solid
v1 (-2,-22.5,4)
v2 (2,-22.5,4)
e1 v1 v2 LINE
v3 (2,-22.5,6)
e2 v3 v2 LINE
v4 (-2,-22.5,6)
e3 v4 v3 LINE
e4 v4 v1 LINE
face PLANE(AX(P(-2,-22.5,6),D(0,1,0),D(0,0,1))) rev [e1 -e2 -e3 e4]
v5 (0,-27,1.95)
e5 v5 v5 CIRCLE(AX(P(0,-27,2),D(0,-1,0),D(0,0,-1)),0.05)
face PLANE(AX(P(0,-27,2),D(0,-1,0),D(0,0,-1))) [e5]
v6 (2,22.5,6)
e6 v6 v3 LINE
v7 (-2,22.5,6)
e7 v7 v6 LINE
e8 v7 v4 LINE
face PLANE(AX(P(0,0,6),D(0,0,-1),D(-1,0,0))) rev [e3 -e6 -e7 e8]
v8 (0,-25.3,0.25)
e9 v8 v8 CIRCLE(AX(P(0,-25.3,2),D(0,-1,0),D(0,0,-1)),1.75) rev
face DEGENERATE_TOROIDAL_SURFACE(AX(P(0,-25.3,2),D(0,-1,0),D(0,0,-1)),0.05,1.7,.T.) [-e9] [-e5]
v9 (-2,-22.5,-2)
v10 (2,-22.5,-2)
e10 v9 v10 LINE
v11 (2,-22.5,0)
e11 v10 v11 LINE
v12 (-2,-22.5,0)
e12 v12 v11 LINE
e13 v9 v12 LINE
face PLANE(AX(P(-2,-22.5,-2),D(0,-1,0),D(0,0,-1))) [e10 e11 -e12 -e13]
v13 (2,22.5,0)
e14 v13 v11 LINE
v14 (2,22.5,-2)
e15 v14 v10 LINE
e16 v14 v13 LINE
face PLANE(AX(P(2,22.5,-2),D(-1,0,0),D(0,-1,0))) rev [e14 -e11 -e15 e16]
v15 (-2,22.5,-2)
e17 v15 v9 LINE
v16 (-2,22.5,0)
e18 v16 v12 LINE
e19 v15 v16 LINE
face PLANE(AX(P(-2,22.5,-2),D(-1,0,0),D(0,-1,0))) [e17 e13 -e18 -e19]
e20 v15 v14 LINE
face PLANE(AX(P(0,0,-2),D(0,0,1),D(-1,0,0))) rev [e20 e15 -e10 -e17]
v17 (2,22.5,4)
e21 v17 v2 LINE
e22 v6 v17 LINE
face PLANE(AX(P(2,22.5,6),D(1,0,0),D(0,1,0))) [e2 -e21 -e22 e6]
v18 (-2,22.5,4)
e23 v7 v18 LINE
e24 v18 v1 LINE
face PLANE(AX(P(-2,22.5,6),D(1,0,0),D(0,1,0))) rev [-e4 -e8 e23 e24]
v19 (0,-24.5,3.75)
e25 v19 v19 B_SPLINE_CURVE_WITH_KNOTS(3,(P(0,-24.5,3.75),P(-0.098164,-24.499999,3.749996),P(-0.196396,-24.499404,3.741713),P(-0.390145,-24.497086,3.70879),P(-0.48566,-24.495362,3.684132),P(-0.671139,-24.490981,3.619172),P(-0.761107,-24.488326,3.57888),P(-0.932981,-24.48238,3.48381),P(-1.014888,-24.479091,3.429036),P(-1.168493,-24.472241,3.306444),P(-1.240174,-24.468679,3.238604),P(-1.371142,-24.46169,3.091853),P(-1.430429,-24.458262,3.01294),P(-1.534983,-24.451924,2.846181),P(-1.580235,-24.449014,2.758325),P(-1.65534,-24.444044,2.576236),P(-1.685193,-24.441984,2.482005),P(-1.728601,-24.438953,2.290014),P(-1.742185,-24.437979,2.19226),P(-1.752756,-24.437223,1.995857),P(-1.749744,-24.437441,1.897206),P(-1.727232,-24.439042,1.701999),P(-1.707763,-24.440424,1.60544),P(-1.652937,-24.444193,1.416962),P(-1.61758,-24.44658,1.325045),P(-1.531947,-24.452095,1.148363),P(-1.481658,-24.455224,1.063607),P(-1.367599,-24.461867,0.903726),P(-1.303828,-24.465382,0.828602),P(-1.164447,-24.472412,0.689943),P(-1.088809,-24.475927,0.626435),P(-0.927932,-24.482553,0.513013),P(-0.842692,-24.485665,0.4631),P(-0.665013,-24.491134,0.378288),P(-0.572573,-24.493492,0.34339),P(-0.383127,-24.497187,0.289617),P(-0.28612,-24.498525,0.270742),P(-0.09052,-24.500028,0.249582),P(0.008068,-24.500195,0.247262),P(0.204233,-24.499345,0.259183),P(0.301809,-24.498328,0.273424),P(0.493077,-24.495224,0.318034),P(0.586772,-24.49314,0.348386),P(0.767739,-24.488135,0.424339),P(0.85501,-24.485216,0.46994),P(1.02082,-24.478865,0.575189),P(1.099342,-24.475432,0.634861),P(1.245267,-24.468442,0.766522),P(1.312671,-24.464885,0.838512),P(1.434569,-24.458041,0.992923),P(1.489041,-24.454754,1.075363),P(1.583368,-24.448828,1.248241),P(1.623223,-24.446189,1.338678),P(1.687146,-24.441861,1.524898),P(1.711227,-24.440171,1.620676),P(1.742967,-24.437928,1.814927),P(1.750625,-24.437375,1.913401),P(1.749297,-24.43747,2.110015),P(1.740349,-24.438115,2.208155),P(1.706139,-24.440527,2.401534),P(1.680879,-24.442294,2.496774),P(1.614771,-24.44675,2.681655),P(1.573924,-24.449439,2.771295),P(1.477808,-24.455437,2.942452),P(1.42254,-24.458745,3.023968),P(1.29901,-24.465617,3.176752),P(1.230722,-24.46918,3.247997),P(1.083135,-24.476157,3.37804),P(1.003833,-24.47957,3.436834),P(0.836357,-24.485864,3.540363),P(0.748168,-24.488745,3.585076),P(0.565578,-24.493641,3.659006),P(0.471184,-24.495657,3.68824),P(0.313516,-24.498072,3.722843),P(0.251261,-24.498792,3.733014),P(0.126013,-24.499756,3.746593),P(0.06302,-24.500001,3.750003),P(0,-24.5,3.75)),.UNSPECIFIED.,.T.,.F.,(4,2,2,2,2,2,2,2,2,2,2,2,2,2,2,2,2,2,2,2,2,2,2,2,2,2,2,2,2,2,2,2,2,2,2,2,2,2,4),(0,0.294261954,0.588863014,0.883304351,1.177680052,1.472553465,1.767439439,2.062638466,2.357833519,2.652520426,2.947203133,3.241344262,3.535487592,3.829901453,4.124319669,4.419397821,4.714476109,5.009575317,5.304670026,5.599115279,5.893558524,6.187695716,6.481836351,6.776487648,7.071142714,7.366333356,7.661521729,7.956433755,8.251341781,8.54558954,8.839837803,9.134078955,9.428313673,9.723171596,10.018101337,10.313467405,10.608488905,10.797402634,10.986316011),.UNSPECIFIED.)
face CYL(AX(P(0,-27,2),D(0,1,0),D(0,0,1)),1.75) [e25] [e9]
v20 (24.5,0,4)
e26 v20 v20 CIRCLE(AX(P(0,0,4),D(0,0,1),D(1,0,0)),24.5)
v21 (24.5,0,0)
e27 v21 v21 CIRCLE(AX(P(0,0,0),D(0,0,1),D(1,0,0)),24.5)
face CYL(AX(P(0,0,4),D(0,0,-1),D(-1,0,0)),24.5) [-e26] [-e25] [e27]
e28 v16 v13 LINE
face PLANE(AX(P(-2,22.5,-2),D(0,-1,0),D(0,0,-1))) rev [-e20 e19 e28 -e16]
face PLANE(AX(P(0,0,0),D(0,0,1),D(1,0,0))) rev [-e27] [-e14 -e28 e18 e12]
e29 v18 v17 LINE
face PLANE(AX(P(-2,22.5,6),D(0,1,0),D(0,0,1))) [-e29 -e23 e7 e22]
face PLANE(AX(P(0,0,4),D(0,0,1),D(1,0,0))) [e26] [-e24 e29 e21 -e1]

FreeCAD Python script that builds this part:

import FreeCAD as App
import Part
import Sketcher


def edges_at(feature, points):
    """Names of the edges that pass closest to the given points."""
    edges = feature.Shape.Edges
    near = lambda p: min(range(len(edges)), key=lambda i: edges[i].distToShape(Part.Vertex(*p))[0])
    return sorted({f"Edge{near(p) + 1}" for p in points})

doc = App.newDocument("Part")
params = doc.addObject("Spreadsheet::Sheet", "Params")
for row, (alias, value) in enumerate([
    ("sketch1_diameter", "49 mm"),
    ("pad1_length", "4 mm"),
    ("sketch2_width", "4 mm"),
    ("sketch2_height", "45 mm"),
    ("pad2_length", "2 mm"),
    ("sketch3_diameter", "3.5 mm"),
    ("pad3_length", "3 mm"),
    ("fillet_radius", "1.7 mm"),
], start=1):
    params.set(f"A{row}", alias)
    params.set(f"B{row}", "=" + value)
    params.setAlias(f"B{row}", alias)

body = doc.addObject("PartDesign::Body", "Body")

# Sketch on XY plane
sketch1 = body.newObject("Sketcher::SketchObject", "Sketch")
sketch1.AttachmentSupport = (doc.getObject("XY_Plane"), [""])
sketch1.MapMode = "FlatFace"
sketch1.addGeometry(Part.Circle(App.Vector(0, 0, 0), App.Vector(0, 0, 1), 24), False)
sketch1.addConstraint([
    Sketcher.Constraint("Coincident", 0, 3, -1, 1),
    Sketcher.Constraint("Diameter", 0, 49.0),
])
sketch1.setExpression("Constraints[1]", "Params.sketch1_diameter")
pad1 = body.newObject("PartDesign::Pad", "Pad")
pad1.Profile = sketch1
pad1.setExpression("Length", "Params.pad1_length")

# Sketch on XY plane
sketch2 = body.newObject("Sketcher::SketchObject", "Sketch001")
sketch2.AttachmentSupport = (doc.getObject("XY_Plane"), [""])
sketch2.MapMode = "FlatFace"
sketch2.AttachmentOffset = App.Placement(App.Vector(0, 0, 4), App.Rotation())
sketch2.addGeometry([
    Part.LineSegment(App.Vector(-2, 22.5, 0), App.Vector(-2, -22.5, 0)),
    Part.LineSegment(App.Vector(-2, -22.5, 0), App.Vector(2, -22.5, 0)),
    Part.LineSegment(App.Vector(2, -22.5, 0), App.Vector(2, 22.5, 0)),
    Part.LineSegment(App.Vector(2, 22.5, 0), App.Vector(-2, 22.5, 0)),
], False)
sketch2.addConstraint([
    Sketcher.Constraint("Coincident", 0, 2, 1, 1),
    Sketcher.Constraint("Coincident", 1, 2, 2, 1),
    Sketcher.Constraint("Coincident", 2, 2, 3, 1),
    Sketcher.Constraint("Coincident", 3, 2, 0, 1),
    Sketcher.Constraint("Vertical", 0),
    Sketcher.Constraint("Horizontal", 1),
    Sketcher.Constraint("Vertical", 2),
    Sketcher.Constraint("Horizontal", 3),
    Sketcher.Constraint("Symmetric", 0, 2, 2, 2, -1, 1),
    Sketcher.Constraint("DistanceX", 1, 1, 1, 2, 4.0),
    Sketcher.Constraint("DistanceY", 0, 2, 0, 1, 45.0),
])
sketch2.setExpression("Constraints[9]", "Params.sketch2_width")
sketch2.setExpression("Constraints[10]", "Params.sketch2_height")
pad2 = body.newObject("PartDesign::Pad", "Pad001")
pad2.Profile = sketch2
pad2.setExpression("Length", "Params.pad2_length")
doc.recompute()

datumplane = body.newObject("PartDesign::Plane", "DatumPlane")
datumplane.AttachmentSupport = (doc.getObject("XY_Plane"), [""])
datumplane.MapMode = "FlatFace"
datumplane.AttachmentOffset = App.Placement(App.Vector(0, 0, 2), App.Rotation())
mirrored = body.newObject("PartDesign::Mirrored", "Mirrored")
mirrored.Originals = [pad2]
mirrored.MirrorPlane = (datumplane, [""])
body.Tip = mirrored

# Sketch on XZ plane
sketch3 = body.newObject("Sketcher::SketchObject", "Sketch002")
sketch3.AttachmentSupport = (doc.getObject("XZ_Plane"), [""])
sketch3.MapMode = "FlatFace"
sketch3.AttachmentOffset = App.Placement(App.Vector(0, 0, 24), App.Rotation())
sketch3.addGeometry(Part.Circle(App.Vector(0, 2, 0), App.Vector(0, 0, 1), 1.8), False)
sketch3.addConstraint([
    Sketcher.Constraint("PointOnObject", 0, 3, -2),
    Sketcher.Constraint("Diameter", 0, 3.5),
    Sketcher.Constraint("DistanceY", -1, 1, 0, 3, 2.0),
])
sketch3.setExpression("Constraints[1]", "Params.sketch3_diameter")
pad3 = body.newObject("PartDesign::Pad", "Pad002")
pad3.Profile = sketch3
pad3.setExpression("Length", "Params.pad3_length")
doc.recompute()

fillet = body.newObject("PartDesign::Fillet", "Fillet")
fillet.Base = (pad3, edges_at(pad3, [(0, -27, 0.25)]))
fillet.setExpression("Radius", "Params.fillet_radius")

doc.recompute()
